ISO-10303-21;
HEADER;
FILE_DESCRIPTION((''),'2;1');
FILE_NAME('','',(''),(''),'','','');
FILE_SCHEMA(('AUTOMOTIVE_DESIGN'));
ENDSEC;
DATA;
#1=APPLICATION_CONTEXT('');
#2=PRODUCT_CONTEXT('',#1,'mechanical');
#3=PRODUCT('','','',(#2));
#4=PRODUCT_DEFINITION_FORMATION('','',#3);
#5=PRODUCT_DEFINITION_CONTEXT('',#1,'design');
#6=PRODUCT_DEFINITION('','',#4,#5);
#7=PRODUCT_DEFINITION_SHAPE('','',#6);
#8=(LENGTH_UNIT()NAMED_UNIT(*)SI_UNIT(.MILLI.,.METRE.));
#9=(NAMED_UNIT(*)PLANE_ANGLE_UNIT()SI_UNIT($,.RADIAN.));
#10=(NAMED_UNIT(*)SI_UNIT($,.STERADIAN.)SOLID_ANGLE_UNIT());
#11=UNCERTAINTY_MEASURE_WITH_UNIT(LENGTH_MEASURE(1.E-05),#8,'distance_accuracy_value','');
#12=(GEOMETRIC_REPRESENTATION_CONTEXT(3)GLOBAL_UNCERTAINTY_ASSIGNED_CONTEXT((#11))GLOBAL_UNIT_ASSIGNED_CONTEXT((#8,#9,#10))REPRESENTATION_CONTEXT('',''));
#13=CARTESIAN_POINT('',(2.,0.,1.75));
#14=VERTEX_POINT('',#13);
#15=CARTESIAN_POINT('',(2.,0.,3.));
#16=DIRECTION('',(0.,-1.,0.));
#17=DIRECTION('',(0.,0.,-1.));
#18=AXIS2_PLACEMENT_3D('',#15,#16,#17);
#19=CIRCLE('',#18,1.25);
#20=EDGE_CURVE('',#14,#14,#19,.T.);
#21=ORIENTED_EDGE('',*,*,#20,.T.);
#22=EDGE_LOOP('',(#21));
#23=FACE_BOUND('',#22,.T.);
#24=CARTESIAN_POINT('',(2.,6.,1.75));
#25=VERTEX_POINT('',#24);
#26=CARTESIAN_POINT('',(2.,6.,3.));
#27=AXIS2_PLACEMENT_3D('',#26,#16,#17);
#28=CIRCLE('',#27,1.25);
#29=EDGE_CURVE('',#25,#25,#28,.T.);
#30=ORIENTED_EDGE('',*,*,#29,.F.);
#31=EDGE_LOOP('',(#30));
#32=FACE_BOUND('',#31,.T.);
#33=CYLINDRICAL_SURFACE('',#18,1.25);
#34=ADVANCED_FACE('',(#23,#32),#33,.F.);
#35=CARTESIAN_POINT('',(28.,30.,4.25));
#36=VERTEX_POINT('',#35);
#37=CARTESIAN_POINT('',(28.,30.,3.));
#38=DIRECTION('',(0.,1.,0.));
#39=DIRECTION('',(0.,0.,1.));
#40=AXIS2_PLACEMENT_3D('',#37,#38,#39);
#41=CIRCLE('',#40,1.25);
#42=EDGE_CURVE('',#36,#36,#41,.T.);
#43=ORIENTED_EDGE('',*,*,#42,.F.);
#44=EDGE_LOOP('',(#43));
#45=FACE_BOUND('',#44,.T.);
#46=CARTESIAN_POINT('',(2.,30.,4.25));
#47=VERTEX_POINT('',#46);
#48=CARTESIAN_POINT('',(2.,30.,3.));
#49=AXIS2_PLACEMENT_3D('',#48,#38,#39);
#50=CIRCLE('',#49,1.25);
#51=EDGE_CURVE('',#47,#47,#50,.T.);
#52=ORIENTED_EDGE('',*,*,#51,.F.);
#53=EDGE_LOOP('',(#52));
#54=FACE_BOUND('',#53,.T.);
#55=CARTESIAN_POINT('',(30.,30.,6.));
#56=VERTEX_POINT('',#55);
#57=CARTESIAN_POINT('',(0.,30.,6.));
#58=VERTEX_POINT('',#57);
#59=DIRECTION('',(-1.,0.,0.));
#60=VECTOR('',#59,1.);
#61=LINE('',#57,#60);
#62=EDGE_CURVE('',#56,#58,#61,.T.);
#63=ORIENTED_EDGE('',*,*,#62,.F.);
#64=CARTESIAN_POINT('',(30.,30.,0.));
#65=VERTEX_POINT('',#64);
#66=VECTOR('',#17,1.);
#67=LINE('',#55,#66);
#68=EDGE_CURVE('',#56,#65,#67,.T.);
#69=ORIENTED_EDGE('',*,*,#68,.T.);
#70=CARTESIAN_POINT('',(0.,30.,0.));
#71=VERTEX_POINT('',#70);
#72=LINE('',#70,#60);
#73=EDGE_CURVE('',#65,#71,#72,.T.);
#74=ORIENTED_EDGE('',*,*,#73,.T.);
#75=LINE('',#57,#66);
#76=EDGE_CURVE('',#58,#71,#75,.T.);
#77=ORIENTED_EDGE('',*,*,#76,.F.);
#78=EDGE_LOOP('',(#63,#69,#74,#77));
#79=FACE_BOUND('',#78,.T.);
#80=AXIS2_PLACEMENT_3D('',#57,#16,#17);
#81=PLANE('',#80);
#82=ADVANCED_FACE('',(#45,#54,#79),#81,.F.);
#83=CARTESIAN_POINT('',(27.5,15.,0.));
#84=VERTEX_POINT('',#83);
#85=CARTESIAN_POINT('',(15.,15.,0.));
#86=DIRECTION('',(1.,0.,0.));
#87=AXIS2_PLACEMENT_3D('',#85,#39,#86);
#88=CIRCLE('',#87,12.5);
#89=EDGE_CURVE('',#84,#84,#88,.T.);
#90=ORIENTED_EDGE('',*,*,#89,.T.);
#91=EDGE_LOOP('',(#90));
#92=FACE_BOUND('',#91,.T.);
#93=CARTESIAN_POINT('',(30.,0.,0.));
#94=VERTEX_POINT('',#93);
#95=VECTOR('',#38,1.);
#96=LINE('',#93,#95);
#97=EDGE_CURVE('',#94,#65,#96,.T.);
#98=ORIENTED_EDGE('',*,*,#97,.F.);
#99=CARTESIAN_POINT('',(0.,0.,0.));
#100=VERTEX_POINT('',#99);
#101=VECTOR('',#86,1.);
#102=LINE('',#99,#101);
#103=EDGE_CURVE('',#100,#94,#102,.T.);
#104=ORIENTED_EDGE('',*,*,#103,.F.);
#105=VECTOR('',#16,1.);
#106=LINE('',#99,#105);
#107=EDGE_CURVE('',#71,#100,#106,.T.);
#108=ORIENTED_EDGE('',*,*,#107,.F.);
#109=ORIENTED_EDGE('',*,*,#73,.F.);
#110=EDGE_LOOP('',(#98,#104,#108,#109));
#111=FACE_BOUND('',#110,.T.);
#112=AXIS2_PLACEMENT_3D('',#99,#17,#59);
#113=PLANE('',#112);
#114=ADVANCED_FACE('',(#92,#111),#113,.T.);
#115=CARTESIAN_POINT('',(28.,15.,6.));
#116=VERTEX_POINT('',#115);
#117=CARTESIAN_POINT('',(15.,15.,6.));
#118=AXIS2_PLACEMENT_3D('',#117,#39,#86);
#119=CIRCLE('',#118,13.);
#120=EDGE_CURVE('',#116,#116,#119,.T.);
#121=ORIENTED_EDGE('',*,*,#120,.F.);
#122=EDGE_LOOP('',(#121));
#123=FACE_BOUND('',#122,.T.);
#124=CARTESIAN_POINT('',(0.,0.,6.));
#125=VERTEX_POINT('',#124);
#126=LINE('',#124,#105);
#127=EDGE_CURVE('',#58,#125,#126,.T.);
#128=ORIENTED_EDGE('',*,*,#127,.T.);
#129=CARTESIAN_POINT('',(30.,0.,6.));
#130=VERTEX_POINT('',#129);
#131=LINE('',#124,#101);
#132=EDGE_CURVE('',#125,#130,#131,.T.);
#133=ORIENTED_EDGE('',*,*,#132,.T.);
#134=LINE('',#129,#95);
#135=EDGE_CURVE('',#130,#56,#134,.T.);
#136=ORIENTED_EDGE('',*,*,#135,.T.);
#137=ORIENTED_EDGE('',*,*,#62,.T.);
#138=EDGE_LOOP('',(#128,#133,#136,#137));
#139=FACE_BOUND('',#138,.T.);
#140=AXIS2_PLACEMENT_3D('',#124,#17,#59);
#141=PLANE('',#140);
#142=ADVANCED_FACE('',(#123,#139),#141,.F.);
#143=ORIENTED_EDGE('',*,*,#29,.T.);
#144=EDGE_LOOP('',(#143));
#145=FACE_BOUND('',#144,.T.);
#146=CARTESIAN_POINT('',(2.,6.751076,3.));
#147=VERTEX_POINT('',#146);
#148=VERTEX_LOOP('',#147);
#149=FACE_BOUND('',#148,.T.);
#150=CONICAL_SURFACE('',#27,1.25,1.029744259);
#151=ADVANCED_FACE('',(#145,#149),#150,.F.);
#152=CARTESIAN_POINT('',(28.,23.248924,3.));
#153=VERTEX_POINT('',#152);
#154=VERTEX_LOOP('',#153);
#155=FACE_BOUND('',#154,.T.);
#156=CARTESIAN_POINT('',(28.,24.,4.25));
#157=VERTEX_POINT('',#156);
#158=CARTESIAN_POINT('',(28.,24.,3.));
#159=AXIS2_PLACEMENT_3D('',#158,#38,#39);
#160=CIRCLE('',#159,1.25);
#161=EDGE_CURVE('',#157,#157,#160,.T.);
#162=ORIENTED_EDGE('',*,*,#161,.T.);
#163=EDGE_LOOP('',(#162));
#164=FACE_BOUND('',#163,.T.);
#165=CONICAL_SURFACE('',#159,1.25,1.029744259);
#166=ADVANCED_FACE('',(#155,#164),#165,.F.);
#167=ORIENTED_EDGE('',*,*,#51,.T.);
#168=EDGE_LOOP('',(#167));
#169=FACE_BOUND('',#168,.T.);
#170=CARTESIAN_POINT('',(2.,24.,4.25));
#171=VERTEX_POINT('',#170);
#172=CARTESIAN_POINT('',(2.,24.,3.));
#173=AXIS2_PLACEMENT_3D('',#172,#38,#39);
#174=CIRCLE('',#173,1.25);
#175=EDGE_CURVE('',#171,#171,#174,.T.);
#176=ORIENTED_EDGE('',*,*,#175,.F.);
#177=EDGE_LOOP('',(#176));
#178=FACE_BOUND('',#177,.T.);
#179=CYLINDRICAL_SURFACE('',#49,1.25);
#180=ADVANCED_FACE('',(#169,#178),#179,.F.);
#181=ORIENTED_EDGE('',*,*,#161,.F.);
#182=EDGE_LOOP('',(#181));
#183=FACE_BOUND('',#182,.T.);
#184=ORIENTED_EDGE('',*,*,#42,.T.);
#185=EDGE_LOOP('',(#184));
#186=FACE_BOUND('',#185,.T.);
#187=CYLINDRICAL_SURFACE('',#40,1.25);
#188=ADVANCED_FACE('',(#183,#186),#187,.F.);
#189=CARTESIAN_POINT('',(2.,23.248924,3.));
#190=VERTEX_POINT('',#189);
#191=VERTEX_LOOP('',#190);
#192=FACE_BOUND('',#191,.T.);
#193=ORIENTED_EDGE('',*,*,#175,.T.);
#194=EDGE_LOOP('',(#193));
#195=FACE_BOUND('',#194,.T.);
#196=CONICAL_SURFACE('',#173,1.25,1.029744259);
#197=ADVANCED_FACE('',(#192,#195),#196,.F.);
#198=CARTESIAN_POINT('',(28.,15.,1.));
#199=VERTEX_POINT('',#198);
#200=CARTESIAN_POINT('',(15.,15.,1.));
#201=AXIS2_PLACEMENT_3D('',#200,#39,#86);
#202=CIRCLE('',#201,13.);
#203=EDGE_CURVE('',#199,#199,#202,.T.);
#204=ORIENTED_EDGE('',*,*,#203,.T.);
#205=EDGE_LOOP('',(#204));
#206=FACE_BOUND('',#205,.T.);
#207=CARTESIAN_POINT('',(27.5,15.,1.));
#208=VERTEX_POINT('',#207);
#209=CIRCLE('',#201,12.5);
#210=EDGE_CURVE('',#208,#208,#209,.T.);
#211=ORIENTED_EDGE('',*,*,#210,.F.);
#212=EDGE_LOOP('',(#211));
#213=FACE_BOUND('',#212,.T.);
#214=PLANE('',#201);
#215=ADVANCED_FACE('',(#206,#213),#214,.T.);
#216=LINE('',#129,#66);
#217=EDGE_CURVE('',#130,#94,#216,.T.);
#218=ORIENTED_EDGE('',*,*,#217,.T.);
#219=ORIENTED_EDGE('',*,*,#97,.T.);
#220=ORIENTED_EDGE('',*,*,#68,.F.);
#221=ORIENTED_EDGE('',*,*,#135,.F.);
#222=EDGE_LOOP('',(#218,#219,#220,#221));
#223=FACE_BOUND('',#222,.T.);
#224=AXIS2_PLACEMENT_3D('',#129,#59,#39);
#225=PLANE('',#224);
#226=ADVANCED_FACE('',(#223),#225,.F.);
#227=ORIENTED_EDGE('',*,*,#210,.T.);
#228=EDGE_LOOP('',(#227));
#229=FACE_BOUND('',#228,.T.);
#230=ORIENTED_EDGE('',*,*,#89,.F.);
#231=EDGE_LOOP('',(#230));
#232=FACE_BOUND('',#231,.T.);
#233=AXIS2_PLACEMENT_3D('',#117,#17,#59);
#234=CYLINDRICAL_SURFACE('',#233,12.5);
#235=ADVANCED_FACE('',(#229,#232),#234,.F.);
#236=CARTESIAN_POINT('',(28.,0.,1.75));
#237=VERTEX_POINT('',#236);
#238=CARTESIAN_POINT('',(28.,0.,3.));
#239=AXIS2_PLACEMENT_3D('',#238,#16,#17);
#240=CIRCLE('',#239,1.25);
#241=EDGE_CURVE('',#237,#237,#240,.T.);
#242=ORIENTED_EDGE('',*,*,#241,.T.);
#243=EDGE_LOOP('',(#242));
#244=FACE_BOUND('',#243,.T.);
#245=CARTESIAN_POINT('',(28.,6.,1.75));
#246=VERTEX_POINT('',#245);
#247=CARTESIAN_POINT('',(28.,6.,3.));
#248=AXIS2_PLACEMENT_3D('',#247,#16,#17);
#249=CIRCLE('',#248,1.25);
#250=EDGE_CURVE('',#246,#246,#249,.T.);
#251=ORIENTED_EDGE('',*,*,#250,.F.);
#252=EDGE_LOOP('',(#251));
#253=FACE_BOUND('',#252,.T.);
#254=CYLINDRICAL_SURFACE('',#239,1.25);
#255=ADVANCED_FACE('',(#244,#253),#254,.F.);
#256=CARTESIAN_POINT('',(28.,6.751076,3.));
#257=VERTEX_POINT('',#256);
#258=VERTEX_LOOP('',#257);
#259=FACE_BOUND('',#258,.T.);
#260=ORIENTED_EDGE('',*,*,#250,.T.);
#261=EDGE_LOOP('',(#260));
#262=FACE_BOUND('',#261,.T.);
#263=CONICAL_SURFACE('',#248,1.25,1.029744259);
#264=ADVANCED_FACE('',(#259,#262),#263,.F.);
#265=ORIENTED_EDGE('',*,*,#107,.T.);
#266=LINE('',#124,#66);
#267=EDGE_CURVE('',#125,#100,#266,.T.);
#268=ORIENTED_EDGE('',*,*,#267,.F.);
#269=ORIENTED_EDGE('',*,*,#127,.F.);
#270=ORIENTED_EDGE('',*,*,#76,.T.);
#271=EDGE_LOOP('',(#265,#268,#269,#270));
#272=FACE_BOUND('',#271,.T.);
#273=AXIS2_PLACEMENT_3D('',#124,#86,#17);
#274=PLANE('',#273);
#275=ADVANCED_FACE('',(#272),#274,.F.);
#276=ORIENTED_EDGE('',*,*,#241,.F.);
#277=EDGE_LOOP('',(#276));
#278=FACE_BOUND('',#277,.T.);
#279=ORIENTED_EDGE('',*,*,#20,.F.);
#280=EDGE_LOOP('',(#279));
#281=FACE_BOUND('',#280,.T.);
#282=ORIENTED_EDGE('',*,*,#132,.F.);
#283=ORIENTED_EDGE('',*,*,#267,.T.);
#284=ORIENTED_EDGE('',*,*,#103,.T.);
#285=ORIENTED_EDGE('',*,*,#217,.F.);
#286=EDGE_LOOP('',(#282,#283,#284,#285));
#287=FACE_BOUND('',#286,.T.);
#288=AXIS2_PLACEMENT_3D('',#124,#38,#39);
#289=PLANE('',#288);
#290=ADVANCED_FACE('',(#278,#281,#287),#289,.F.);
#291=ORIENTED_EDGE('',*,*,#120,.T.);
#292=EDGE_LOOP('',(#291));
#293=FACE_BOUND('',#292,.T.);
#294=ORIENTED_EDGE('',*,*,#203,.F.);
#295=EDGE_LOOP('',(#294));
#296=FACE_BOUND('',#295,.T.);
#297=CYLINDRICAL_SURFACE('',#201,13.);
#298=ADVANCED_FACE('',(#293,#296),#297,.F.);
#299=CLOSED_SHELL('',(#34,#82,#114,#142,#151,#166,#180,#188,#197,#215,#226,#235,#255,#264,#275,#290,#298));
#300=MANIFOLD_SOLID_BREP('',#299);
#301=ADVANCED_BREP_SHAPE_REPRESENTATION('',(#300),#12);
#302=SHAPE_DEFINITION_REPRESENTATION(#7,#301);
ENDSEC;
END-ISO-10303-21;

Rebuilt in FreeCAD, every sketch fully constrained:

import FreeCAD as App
import Part
import Sketcher


def add_polygon(sketch, points):
    """Adds a closed chain of lines whose ends are joined by coincident constraints."""
    first, n = sketch.GeometryCount, len(points)
    for a, b in zip(points, points[1:] + points[:1]):
        sketch.addGeometry(Part.LineSegment(App.Vector(*a, 0), App.Vector(*b, 0)), False)
    for i in range(n):
        sketch.addConstraint(Sketcher.Constraint("Coincident", first + i, 2, first + (i + 1) % n, 1))

doc = App.newDocument("Part")
body = doc.addObject("PartDesign::Body", "Body")

sketch1 = body.newObject("Sketcher::SketchObject", "Sketch")
sketch1.AttachmentSupport = (doc.getObject("XY_Plane"), [""])
sketch1.MapMode = "FlatFace"
add_polygon(sketch1, [(0, 30), (0, 0), (30, 0), (30, 30)])
sketch1.addGeometry(Part.Circle(App.Vector(15, 15, 0), App.Vector(0, 0, 1), 12.5), False)
sketch1.addConstraint([
    Sketcher.Constraint("Vertical", 0),
    Sketcher.Constraint("Horizontal", 1),
    Sketcher.Constraint("Vertical", 2),
    Sketcher.Constraint("Horizontal", 3),
    Sketcher.Constraint("Coincident", 0, 2, -1, 1),
    Sketcher.Constraint("Equal", 3, 0),
    Sketcher.Constraint("Diameter", 4, 25.0),
    Sketcher.Constraint("DistanceX", 1, 1, 1, 2, 30.0),
    Sketcher.Constraint("DistanceX", -1, 1, 4, 3, 15.0),
    Sketcher.Constraint("DistanceY", -1, 1, 4, 3, 15.0),
])
pad1 = body.newObject("PartDesign::Pad", "Pad")
pad1.Profile = sketch1
pad1.Length = 6

sketch2 = body.newObject("Sketcher::SketchObject", "Sketch001")
sketch2.AttachmentSupport = (doc.getObject("XY_Plane"), [""])
sketch2.MapMode = "FlatFace"
sketch2.AttachmentOffset = App.Placement(App.Vector(0, 0, 6), App.Rotation())
sketch2.addGeometry(Part.Circle(App.Vector(15, 15, 0), App.Vector(0, 0, 1), 13), False)
sketch2.addConstraint([
    Sketcher.Constraint("Diameter", 0, 26.0),
    Sketcher.Constraint("DistanceX", -1, 1, 0, 3, 15.0),
    Sketcher.Constraint("DistanceY", -1, 1, 0, 3, 15.0),
])
pocket1 = body.newObject("PartDesign::Pocket", "Pocket")
pocket1.Profile = sketch2
pocket1.Length = 5

sketch3 = body.newObject("Sketcher::SketchObject", "Sketch002")
sketch3.AttachmentSupport = (doc.getObject("XZ_Plane"), [""])
sketch3.MapMode = "FlatFace"
sketch3.AttachmentOffset = App.Placement(App.Vector(0, 0, -30), App.Rotation())
sketch3.addGeometry([
    Part.Circle(App.Vector(2, 3, 0), App.Vector(0, 0, 1), 1.25),
    Part.Circle(App.Vector(28, 3, 0), App.Vector(0, 0, 1), 1.25),
], False)
sketch3.addConstraint([
    Sketcher.Constraint("Equal", 0, 1),
    Sketcher.Constraint("Horizontal", 0, 3, 1, 3),
    Sketcher.Constraint("Diameter", 0, 2.5),
    Sketcher.Constraint("DistanceX", -1, 1, 0, 3, 2.0),
    Sketcher.Constraint("DistanceY", -1, 1, 0, 3, 3.0),
    Sketcher.Constraint("DistanceX", -1, 1, 1, 3, 28.0),
])
doc.recompute()
hole = body.newObject("PartDesign::Hole", "Hole")
hole.Profile = sketch3
hole.ThreadType = "None"
hole.Diameter = 2.5
hole.DepthType = "Dimension"
hole.Depth = 6
hole.DrillPoint = "Angled"
hole.DrillPointAngle = 118
hole.Reversed = True

sketch4 = body.newObject("Sketcher::SketchObject", "Sketch003")
sketch4.AttachmentSupport = (doc.getObject("XZ_Plane"), [""])
sketch4.MapMode = "FlatFace"
sketch4.addGeometry([
    Part.Circle(App.Vector(2, 3, 0), App.Vector(0, 0, 1), 1.25),
    Part.Circle(App.Vector(28, 3, 0), App.Vector(0, 0, 1), 1.25),
], False)
sketch4.addConstraint([
    Sketcher.Constraint("Equal", 0, 1),
    Sketcher.Constraint("Horizontal", 0, 3, 1, 3),
    Sketcher.Constraint("Diameter", 0, 2.5),
    Sketcher.Constraint("DistanceX", -1, 1, 0, 3, 2.0),
    Sketcher.Constraint("DistanceY", -1, 1, 0, 3, 3.0),
    Sketcher.Constraint("DistanceX", -1, 1, 1, 3, 28.0),
])
doc.recompute()
hole2 = body.newObject("PartDesign::Hole", "Hole001")
hole2.Profile = sketch4
hole2.ThreadType = "None"
hole2.Diameter = 2.5
hole2.DepthType = "Dimension"
hole2.Depth = 6
hole2.DrillPoint = "Angled"
hole2.DrillPointAngle = 118

doc.recompute()
